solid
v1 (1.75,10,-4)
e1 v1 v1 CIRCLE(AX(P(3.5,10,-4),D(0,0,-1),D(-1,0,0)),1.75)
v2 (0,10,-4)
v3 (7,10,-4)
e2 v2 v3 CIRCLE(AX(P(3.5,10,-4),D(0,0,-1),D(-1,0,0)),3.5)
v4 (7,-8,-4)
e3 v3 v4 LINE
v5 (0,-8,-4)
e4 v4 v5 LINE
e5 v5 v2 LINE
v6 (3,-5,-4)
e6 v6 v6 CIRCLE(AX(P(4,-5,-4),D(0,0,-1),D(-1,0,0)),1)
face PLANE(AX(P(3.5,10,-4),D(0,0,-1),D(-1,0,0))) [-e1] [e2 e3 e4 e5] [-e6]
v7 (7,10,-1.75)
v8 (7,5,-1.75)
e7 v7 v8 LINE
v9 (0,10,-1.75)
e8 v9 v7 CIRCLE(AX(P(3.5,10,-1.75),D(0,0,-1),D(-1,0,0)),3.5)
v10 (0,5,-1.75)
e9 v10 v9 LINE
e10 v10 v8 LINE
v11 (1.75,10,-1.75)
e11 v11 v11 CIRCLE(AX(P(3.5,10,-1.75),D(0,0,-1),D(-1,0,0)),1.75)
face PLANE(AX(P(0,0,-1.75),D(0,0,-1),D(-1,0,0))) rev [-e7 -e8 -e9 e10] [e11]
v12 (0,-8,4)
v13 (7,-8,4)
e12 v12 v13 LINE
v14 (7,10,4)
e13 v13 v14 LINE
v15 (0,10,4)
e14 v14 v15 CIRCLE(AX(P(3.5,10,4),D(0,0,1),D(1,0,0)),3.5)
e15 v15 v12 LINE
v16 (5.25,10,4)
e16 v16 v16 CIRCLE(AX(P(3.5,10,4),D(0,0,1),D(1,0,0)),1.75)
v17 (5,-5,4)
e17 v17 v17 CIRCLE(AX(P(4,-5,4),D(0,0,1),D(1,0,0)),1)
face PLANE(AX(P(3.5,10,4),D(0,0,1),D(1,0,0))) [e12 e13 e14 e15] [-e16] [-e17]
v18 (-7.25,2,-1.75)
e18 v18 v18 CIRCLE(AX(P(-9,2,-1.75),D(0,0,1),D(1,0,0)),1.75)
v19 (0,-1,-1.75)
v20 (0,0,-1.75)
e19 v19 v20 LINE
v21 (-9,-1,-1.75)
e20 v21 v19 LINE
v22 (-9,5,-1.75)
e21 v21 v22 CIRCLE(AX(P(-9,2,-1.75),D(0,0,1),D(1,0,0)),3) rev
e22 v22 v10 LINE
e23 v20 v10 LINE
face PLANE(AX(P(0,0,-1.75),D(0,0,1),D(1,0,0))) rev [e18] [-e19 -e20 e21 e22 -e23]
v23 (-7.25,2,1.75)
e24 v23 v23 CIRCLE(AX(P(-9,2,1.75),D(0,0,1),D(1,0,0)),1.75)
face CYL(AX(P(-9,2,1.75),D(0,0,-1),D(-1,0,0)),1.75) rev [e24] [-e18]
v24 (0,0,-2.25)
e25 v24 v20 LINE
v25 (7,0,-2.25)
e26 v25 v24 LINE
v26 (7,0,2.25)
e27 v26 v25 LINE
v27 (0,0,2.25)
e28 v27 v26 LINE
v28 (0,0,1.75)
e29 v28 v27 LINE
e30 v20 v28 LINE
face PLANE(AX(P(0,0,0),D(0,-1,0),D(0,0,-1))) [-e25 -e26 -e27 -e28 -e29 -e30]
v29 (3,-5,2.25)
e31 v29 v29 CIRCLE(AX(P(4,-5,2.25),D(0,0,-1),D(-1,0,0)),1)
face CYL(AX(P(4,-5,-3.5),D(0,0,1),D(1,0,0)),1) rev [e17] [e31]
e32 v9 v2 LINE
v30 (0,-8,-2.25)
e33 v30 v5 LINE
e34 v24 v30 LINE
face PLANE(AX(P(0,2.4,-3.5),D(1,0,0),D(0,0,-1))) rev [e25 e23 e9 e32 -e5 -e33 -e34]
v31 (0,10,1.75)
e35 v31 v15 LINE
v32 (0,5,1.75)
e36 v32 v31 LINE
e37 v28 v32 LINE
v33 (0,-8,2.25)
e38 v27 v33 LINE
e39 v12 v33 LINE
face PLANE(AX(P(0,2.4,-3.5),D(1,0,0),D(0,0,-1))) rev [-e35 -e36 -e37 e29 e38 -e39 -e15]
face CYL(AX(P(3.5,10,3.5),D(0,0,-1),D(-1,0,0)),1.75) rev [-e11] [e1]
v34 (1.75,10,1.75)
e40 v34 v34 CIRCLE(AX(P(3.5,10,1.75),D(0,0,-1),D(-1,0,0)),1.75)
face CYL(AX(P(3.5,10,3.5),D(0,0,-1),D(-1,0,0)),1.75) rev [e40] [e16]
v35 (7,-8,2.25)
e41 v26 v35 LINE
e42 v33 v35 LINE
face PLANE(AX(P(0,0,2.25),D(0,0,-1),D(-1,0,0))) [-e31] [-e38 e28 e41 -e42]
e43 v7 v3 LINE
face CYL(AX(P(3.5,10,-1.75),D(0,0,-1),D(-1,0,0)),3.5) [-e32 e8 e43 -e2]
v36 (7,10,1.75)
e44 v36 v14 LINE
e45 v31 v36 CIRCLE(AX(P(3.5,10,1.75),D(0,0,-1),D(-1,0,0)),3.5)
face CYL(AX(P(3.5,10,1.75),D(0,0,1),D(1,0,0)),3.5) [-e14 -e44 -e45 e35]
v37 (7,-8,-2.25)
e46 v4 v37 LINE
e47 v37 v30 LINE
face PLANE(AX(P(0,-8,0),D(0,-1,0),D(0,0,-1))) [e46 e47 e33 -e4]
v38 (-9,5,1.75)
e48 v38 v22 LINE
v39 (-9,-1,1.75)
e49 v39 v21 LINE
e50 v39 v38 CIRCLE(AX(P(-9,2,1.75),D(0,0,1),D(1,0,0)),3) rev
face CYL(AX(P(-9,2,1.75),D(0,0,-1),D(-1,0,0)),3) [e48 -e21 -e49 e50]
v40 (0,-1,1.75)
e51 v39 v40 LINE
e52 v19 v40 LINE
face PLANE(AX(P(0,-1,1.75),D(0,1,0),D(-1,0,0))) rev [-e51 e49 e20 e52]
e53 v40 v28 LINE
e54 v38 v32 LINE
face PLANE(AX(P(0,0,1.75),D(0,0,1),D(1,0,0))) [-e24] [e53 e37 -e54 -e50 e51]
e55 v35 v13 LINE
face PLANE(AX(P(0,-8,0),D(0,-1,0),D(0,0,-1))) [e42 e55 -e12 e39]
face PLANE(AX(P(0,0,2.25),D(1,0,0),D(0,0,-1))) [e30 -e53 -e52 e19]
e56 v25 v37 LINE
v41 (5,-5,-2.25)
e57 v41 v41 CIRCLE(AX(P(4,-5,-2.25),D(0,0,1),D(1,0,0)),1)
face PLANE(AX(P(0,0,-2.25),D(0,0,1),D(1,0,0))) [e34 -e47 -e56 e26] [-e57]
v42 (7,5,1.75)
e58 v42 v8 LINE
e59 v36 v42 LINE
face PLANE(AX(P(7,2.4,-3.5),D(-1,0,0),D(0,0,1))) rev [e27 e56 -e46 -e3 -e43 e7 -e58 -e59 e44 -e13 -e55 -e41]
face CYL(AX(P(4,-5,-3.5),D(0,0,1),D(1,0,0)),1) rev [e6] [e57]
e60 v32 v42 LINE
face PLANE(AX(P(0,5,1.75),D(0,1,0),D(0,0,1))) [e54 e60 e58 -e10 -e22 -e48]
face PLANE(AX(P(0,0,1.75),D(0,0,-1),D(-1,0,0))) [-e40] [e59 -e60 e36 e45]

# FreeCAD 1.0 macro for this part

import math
import FreeCAD as App
import Part
import Sketcher
from FreeCAD import Vector
Q = App.Units.Quantity

doc = App.newDocument("Part")
body = doc.addObject("PartDesign::Body", "Body")

# Sketch on XZ plane
sketch1 = doc.addObject("Sketcher::SketchObject", "Sketch")
body.addObject(sketch1)
sketch1.AttachmentSupport = (doc.XZ_Plane, [""])
sketch1.MapMode = "FlatFace"
sketch1.addGeometry([
    Part.LineSegment(Vector(0, -4, 0), Vector(0, 4, 0)),
    Part.LineSegment(Vector(0, 4, 0), Vector(7, 4, 0)),
    Part.LineSegment(Vector(7, 4, 0), Vector(7, -4, 0)),
    Part.LineSegment(Vector(7, -4, 0), Vector(0, -4, 0)),
], False)
sketch1.addConstraint([
    Sketcher.Constraint("Coincident", 0, 2, 1, 1),
    Sketcher.Constraint("Coincident", 1, 2, 2, 1),
    Sketcher.Constraint("Coincident", 2, 2, 3, 1),
    Sketcher.Constraint("Coincident", 3, 2, 0, 1),
    Sketcher.Constraint("Vertical", 0),
    Sketcher.Constraint("Horizontal", 1),
    Sketcher.Constraint("Vertical", 2),
    Sketcher.Constraint("Horizontal", 3),
    Sketcher.Constraint("Symmetric", 0, 2, 3, 2, -1, 1),
    Sketcher.Constraint("Equal", 3, 0),
    Sketcher.Constraint("DistanceX", 1, 1, 1, 2, Q("7 mm")),
])
pad1 = doc.addObject("PartDesign::Pad", "Pad")
body.addObject(pad1)
pad1.Profile = sketch1
pad1.Length = 2.4
pad1.Reversed = True

# Sketch on XY plane
sketch2 = doc.addObject("Sketcher::SketchObject", "Sketch001")
body.addObject(sketch2)
sketch2.AttachmentSupport = (doc.XY_Plane, [""])
sketch2.MapMode = "FlatFace"
sketch2.AttachmentOffset = App.Placement(Vector(0, 0, -3.5), App.Rotation())
sketch2.addGeometry([
    Part.LineSegment(Vector(0, 2.4, 0), Vector(0, 10, 0)),
    Part.ArcOfCircle(Part.Circle(Vector(3.5, 10, 0), Vector(0, 0, 1), 3.5), math.radians(0), math.radians(180)),
    Part.LineSegment(Vector(7, 10, 0), Vector(7, 2.4, 0)),
    Part.LineSegment(Vector(7, 2.4, 0), Vector(0, 2.4, 0)),
], False)
sketch2.addConstraint([
    Sketcher.Constraint("Tangent", 0, 2, 1, 2),
    Sketcher.Constraint("Tangent", 1, 1, 2, 1),
    Sketcher.Constraint("Coincident", 2, 2, 3, 1),
    Sketcher.Constraint("Coincident", 3, 2, 0, 1),
    Sketcher.Constraint("Vertical", 0),
    Sketcher.Constraint("Vertical", 2),
    Sketcher.Constraint("Horizontal", 3),
    Sketcher.Constraint("PointOnObject", 0, 2, -2),
    Sketcher.Constraint("Radius", 1, Q("3.5 mm")),
    Sketcher.Constraint("DistanceY", 0, 1, 0, 2, Q("7.6 mm")),
    Sketcher.Constraint("DistanceY", -1, 1, 1, 3, Q("10 mm")),
])
pad2 = doc.addObject("PartDesign::Pad", "Pad001")
body.addObject(pad2)
pad2.Profile = sketch2
pad2.Length = 1.75

# Sketch on XY plane
sketch3 = doc.addObject("Sketcher::SketchObject", "Sketch002")
body.addObject(sketch3)
sketch3.AttachmentSupport = (doc.XY_Plane, [""])
sketch3.MapMode = "FlatFace"
sketch3.AttachmentOffset = App.Placement(Vector(0, 0, 1.75), App.Rotation())
sketch3.addGeometry([
    Part.LineSegment(Vector(0, 2.4, 0), Vector(0, 10, 0)),
    Part.ArcOfCircle(Part.Circle(Vector(3.5, 10, 0), Vector(0, 0, 1), 3.5), math.radians(0), math.radians(180)),
    Part.LineSegment(Vector(7, 10, 0), Vector(7, 2.4, 0)),
    Part.LineSegment(Vector(7, 2.4, 0), Vector(0, 2.4, 0)),
], False)
sketch3.addConstraint([
    Sketcher.Constraint("Tangent", 0, 2, 1, 2),
    Sketcher.Constraint("Tangent", 1, 1, 2, 1),
    Sketcher.Constraint("Coincident", 2, 2, 3, 1),
    Sketcher.Constraint("Coincident", 3, 2, 0, 1),
    Sketcher.Constraint("Vertical", 0),
    Sketcher.Constraint("Vertical", 2),
    Sketcher.Constraint("Horizontal", 3),
    Sketcher.Constraint("PointOnObject", 0, 2, -2),
    Sketcher.Constraint("Radius", 1, Q("3.5 mm")),
    Sketcher.Constraint("DistanceY", 0, 1, 0, 2, Q("7.6 mm")),
    Sketcher.Constraint("DistanceY", -1, 1, 1, 3, Q("10 mm")),
])
pad3 = doc.addObject("PartDesign::Pad", "Pad002")
body.addObject(pad3)
pad3.Profile = sketch3
pad3.Length = 1.75

# Sketch on XY plane
sketch4 = doc.addObject("Sketcher::SketchObject", "Sketch003")
body.addObject(sketch4)
sketch4.AttachmentSupport = (doc.XY_Plane, [""])
sketch4.MapMode = "FlatFace"
sketch4.AttachmentOffset = App.Placement(Vector(0, 0, -3.5), App.Rotation())
sketch4.addGeometry(Part.Circle(Vector(3.5, 10, 0), Vector(0, 0, 1), 1.8), False)
sketch4.addConstraint([
    Sketcher.Constraint("Diameter", 0, Q("3.5 mm")),
    Sketcher.Constraint("DistanceY", -1, 1, 0, 3, Q("10 mm")),
    Sketcher.Constraint("DistanceX", -1, 1, 0, 3, Q("3.5 mm")),
])
pocket1 = doc.addObject("PartDesign::Pocket", "Pocket")
body.addObject(pocket1)
pocket1.Profile = sketch4
pocket1.Type = "ThroughAll"
pocket1.Reversed = True

# Sketch on XZ plane
sketch5 = doc.addObject("Sketcher::SketchObject", "Sketch004")
body.addObject(sketch5)
sketch5.AttachmentSupport = (doc.XZ_Plane, [""])
sketch5.MapMode = "FlatFace"
sketch5.addGeometry([
    Part.LineSegment(Vector(0, 4, 0), Vector(0, -4, 0)),
    Part.LineSegment(Vector(0, -4, 0), Vector(7, -4, 0)),
    Part.LineSegment(Vector(7, -4, 0), Vector(7, 4, 0)),
    Part.LineSegment(Vector(7, 4, 0), Vector(0, 4, 0)),
], False)
sketch5.addConstraint([
    Sketcher.Constraint("Coincident", 0, 2, 1, 1),
    Sketcher.Constraint("Coincident", 1, 2, 2, 1),
    Sketcher.Constraint("Coincident", 2, 2, 3, 1),
    Sketcher.Constraint("Coincident", 3, 2, 0, 1),
    Sketcher.Constraint("Vertical", 0),
    Sketcher.Constraint("Horizontal", 1),
    Sketcher.Constraint("Vertical", 2),
    Sketcher.Constraint("Horizontal", 3),
    Sketcher.Constraint("Symmetric", 0, 2, 3, 2, -1, 1),
    Sketcher.Constraint("Equal", 3, 0),
    Sketcher.Constraint("DistanceX", 1, 1, 1, 2, Q("7 mm")),
])
pad4 = doc.addObject("PartDesign::Pad", "Pad003")
body.addObject(pad4)
pad4.Profile = sketch5
pad4.Length = 8

# Sketch on XY plane
sketch6 = doc.addObject("Sketcher::SketchObject", "Sketch005")
body.addObject(sketch6)
sketch6.AttachmentSupport = (doc.XY_Plane, [""])
sketch6.MapMode = "FlatFace"
sketch6.addGeometry([
    Part.ArcOfCircle(Part.Circle(Vector(-9, 2, 0), Vector(0, 0, 1), 3), math.radians(90), math.radians(270)),  # 0
    Part.LineSegment(Vector(-9, -1, 0), Vector(7, -1, 0)),  # 1
    Part.LineSegment(Vector(7, -1, 0), Vector(7, 5, 0)),  # 2
    Part.LineSegment(Vector(7, 5, 0), Vector(-9, 5, 0)),  # 3
    Part.Circle(Vector(-9, 2, 0), Vector(0, 0, 1), 1.8),  # 4
], False)
sketch6.addConstraint([
    Sketcher.Constraint("Tangent", 0, 2, 1, 1),
    Sketcher.Constraint("Coincident", 1, 2, 2, 1),
    Sketcher.Constraint("Coincident", 2, 2, 3, 1),
    Sketcher.Constraint("Tangent", 3, 2, 0, 1),
    Sketcher.Constraint("Horizontal", 1),
    Sketcher.Constraint("Vertical", 2),
    Sketcher.Constraint("Horizontal", 3),
    Sketcher.Constraint("Coincident", 4, 3, 0, 3),
    Sketcher.Constraint("Radius", 0, Q("3 mm")),
    Sketcher.Constraint("Diameter", 4, Q("3.5 mm")),
    Sketcher.Constraint("DistanceX", 1, 1, 1, 2, Q("16 mm")),
    Sketcher.Constraint("DistanceX", 0, 3, -1, 1, Q("9 mm")),
    Sketcher.Constraint("DistanceY", -1, 1, 0, 3, Q("2 mm")),
])
pad5 = doc.addObject("PartDesign::Pad", "Pad004")
body.addObject(pad5)
pad5.Profile = sketch6
pad5.Length = 3.5
pad5.Midplane = True

# Sketch on XY plane
sketch7 = doc.addObject("Sketcher::SketchObject", "Sketch006")
body.addObject(sketch7)
sketch7.AttachmentSupport = (doc.XY_Plane, [""])
sketch7.MapMode = "FlatFace"
sketch7.AttachmentOffset = App.Placement(Vector(0, 0, 3.5), App.Rotation())
sketch7.addGeometry(Part.Circle(Vector(4, -5, 0), Vector(0, 0, 1), 1), False)
sketch7.addConstraint([
    Sketcher.Constraint("Diameter", 0, Q("2 mm")),
    Sketcher.Constraint("DistanceX", -1, 1, 0, 3, Q("4 mm")),
    Sketcher.Constraint("DistanceY", 0, 3, -1, 1, Q("5 mm")),
])
pocket2 = doc.addObject("PartDesign::Pocket", "Pocket001")
body.addObject(pocket2)
pocket2.Profile = sketch7
pocket2.Type = "ThroughAll"

# Sketch on XZ plane
sketch8 = doc.addObject("Sketcher::SketchObject", "Sketch007")
body.addObject(sketch8)
sketch8.AttachmentSupport = (doc.XZ_Plane, [""])
sketch8.MapMode = "FlatFace"
sketch8.AttachmentOffset = App.Placement(Vector(0, 0, 8), App.Rotation())
sketch8.addGeometry([
    Part.LineSegment(Vector(0, -2.2, 0), Vector(0, 2.2, 0)),
    Part.LineSegment(Vector(0, 2.2, 0), Vector(7, 2.2, 0)),
    Part.LineSegment(Vector(7, 2.2, 0), Vector(7, -2.2, 0)),
    Part.LineSegment(Vector(7, -2.2, 0), Vector(0, -2.2, 0)),
], False)
sketch8.addConstraint([
    Sketcher.Constraint("Coincident", 0, 2, 1, 1),
    Sketcher.Constraint("Coincident", 1, 2, 2, 1),
    Sketcher.Constraint("Coincident", 2, 2, 3, 1),
    Sketcher.Constraint("Coincident", 3, 2, 0, 1),
    Sketcher.Constraint("Vertical", 0),
    Sketcher.Constraint("Horizontal", 1),
    Sketcher.Constraint("Vertical", 2),
    Sketcher.Constraint("Horizontal", 3),
    Sketcher.Constraint("Symmetric", 0, 2, 3, 2, -1, 1),
    Sketcher.Constraint("DistanceX", 1, 1, 1, 2, Q("7 mm")),
    Sketcher.Constraint("DistanceY", 0, 1, 0, 2, Q("4.5 mm")),
])
pocket3 = doc.addObject("PartDesign::Pocket", "Pocket002")
body.addObject(pocket3)
pocket3.Profile = sketch8
pocket3.Length = 8

# Sketch on XY plane
sketch9 = doc.addObject("Sketcher::SketchObject", "Sketch008")
body.addObject(sketch9)
sketch9.AttachmentSupport = (doc.XY_Plane, [""])
sketch9.MapMode = "FlatFace"
sketch9.AttachmentOffset = App.Placement(Vector(0, 0, 3.5), App.Rotation())
sketch9.addGeometry([
    Part.LineSegment(Vector(0, 10, 0), Vector(0, -8, 0)),  # 0
    Part.LineSegment(Vector(0, -8, 0), Vector(7, -8, 0)),  # 1
    Part.LineSegment(Vector(7, -8, 0), Vector(7, 10, 0)),  # 2
    Part.ArcOfCircle(Part.Circle(Vector(3.5, 10, 0), Vector(0, 0, 1), 3.5), math.radians(0), math.radians(180)),  # 3
    Part.Circle(Vector(4, -5, 0), Vector(0, 0, 1), 1),  # 4
    Part.Circle(Vector(3.5, 10, 0), Vector(0, 0, 1), 1.8),  # 5
], False)
sketch9.addConstraint([
    Sketcher.Constraint("Coincident", 0, 2, 1, 1),
    Sketcher.Constraint("Coincident", 1, 2, 2, 1),
    Sketcher.Constraint("Tangent", 2, 2, 3, 1),
    Sketcher.Constraint("Tangent", 3, 2, 0, 1),
    Sketcher.Constraint("Vertical", 0),
    Sketcher.Constraint("Horizontal", 1),
    Sketcher.Constraint("Vertical", 2),
    Sketcher.Constraint("Coincident", 5, 3, 3, 3),
    Sketcher.Constraint("PointOnObject", 0, 2, -2),
    Sketcher.Constraint("Diameter", 4, Q("2 mm")),
    Sketcher.Constraint("Diameter", 5, Q("3.5 mm")),
    Sketcher.Constraint("Radius", 3, Q("3.5 mm")),
    Sketcher.Constraint("DistanceY", 0, 2, 0, 1, Q("18 mm")),
    Sketcher.Constraint("DistanceY", -1, 1, 3, 3, Q("10 mm")),
    Sketcher.Constraint("DistanceX", -1, 1, 4, 3, Q("4 mm")),
    Sketcher.Constraint("DistanceY", 4, 3, -1, 1, Q("5 mm")),
])
pad6 = doc.addObject("PartDesign::Pad", "Pad005")
body.addObject(pad6)
pad6.Profile = sketch9
pad6.Length = 0.5

# Sketch on XY plane
sketch10 = doc.addObject("Sketcher::SketchObject", "Sketch009")
body.addObject(sketch10)
sketch10.AttachmentSupport = (doc.XY_Plane, [""])
sketch10.MapMode = "FlatFace"
sketch10.AttachmentOffset = App.Placement(Vector(0, 0, -4), App.Rotation())
sketch10.addGeometry([
    Part.LineSegment(Vector(7, 10, 0), Vector(7, -8, 0)),  # 0
    Part.LineSegment(Vector(7, -8, 0), Vector(0, -8, 0)),  # 1
    Part.LineSegment(Vector(0, -8, 0), Vector(0, 10, 0)),  # 2
    Part.ArcOfCircle(Part.Circle(Vector(3.5, 10, 0), Vector(0, 0, 1), 3.5), math.radians(0), math.radians(180)),  # 3
    Part.Circle(Vector(4, -5, 0), Vector(0, 0, 1), 1),  # 4
    Part.Circle(Vector(3.5, 10, 0), Vector(0, 0, 1), 1.8),  # 5
], False)
sketch10.addConstraint([
    Sketcher.Constraint("Coincident", 0, 2, 1, 1),
    Sketcher.Constraint("Coincident", 1, 2, 2, 1),
    Sketcher.Constraint("Tangent", 2, 2, 3, 2),
    Sketcher.Constraint("Tangent", 3, 1, 0, 1),
    Sketcher.Constraint("Vertical", 0),
    Sketcher.Constraint("Horizontal", 1),
    Sketcher.Constraint("Vertical", 2),
    Sketcher.Constraint("Coincident", 5, 3, 3, 3),
    Sketcher.Constraint("PointOnObject", 1, 2, -2),
    Sketcher.Constraint("Diameter", 4, Q("2 mm")),
    Sketcher.Constraint("Diameter", 5, Q("3.5 mm")),
    Sketcher.Constraint("Radius", 3, Q("3.5 mm")),
    Sketcher.Constraint("DistanceY", 0, 2, 0, 1, Q("18 mm")),
    Sketcher.Constraint("DistanceY", -1, 1, 3, 3, Q("10 mm")),
    Sketcher.Constraint("DistanceX", -1, 1, 4, 3, Q("4 mm")),
    Sketcher.Constraint("DistanceY", 4, 3, -1, 1, Q("5 mm")),
])
pad7 = doc.addObject("PartDesign::Pad", "Pad006")
body.addObject(pad7)
pad7.Profile = sketch10
pad7.Length = 0.5

doc.recompute()
